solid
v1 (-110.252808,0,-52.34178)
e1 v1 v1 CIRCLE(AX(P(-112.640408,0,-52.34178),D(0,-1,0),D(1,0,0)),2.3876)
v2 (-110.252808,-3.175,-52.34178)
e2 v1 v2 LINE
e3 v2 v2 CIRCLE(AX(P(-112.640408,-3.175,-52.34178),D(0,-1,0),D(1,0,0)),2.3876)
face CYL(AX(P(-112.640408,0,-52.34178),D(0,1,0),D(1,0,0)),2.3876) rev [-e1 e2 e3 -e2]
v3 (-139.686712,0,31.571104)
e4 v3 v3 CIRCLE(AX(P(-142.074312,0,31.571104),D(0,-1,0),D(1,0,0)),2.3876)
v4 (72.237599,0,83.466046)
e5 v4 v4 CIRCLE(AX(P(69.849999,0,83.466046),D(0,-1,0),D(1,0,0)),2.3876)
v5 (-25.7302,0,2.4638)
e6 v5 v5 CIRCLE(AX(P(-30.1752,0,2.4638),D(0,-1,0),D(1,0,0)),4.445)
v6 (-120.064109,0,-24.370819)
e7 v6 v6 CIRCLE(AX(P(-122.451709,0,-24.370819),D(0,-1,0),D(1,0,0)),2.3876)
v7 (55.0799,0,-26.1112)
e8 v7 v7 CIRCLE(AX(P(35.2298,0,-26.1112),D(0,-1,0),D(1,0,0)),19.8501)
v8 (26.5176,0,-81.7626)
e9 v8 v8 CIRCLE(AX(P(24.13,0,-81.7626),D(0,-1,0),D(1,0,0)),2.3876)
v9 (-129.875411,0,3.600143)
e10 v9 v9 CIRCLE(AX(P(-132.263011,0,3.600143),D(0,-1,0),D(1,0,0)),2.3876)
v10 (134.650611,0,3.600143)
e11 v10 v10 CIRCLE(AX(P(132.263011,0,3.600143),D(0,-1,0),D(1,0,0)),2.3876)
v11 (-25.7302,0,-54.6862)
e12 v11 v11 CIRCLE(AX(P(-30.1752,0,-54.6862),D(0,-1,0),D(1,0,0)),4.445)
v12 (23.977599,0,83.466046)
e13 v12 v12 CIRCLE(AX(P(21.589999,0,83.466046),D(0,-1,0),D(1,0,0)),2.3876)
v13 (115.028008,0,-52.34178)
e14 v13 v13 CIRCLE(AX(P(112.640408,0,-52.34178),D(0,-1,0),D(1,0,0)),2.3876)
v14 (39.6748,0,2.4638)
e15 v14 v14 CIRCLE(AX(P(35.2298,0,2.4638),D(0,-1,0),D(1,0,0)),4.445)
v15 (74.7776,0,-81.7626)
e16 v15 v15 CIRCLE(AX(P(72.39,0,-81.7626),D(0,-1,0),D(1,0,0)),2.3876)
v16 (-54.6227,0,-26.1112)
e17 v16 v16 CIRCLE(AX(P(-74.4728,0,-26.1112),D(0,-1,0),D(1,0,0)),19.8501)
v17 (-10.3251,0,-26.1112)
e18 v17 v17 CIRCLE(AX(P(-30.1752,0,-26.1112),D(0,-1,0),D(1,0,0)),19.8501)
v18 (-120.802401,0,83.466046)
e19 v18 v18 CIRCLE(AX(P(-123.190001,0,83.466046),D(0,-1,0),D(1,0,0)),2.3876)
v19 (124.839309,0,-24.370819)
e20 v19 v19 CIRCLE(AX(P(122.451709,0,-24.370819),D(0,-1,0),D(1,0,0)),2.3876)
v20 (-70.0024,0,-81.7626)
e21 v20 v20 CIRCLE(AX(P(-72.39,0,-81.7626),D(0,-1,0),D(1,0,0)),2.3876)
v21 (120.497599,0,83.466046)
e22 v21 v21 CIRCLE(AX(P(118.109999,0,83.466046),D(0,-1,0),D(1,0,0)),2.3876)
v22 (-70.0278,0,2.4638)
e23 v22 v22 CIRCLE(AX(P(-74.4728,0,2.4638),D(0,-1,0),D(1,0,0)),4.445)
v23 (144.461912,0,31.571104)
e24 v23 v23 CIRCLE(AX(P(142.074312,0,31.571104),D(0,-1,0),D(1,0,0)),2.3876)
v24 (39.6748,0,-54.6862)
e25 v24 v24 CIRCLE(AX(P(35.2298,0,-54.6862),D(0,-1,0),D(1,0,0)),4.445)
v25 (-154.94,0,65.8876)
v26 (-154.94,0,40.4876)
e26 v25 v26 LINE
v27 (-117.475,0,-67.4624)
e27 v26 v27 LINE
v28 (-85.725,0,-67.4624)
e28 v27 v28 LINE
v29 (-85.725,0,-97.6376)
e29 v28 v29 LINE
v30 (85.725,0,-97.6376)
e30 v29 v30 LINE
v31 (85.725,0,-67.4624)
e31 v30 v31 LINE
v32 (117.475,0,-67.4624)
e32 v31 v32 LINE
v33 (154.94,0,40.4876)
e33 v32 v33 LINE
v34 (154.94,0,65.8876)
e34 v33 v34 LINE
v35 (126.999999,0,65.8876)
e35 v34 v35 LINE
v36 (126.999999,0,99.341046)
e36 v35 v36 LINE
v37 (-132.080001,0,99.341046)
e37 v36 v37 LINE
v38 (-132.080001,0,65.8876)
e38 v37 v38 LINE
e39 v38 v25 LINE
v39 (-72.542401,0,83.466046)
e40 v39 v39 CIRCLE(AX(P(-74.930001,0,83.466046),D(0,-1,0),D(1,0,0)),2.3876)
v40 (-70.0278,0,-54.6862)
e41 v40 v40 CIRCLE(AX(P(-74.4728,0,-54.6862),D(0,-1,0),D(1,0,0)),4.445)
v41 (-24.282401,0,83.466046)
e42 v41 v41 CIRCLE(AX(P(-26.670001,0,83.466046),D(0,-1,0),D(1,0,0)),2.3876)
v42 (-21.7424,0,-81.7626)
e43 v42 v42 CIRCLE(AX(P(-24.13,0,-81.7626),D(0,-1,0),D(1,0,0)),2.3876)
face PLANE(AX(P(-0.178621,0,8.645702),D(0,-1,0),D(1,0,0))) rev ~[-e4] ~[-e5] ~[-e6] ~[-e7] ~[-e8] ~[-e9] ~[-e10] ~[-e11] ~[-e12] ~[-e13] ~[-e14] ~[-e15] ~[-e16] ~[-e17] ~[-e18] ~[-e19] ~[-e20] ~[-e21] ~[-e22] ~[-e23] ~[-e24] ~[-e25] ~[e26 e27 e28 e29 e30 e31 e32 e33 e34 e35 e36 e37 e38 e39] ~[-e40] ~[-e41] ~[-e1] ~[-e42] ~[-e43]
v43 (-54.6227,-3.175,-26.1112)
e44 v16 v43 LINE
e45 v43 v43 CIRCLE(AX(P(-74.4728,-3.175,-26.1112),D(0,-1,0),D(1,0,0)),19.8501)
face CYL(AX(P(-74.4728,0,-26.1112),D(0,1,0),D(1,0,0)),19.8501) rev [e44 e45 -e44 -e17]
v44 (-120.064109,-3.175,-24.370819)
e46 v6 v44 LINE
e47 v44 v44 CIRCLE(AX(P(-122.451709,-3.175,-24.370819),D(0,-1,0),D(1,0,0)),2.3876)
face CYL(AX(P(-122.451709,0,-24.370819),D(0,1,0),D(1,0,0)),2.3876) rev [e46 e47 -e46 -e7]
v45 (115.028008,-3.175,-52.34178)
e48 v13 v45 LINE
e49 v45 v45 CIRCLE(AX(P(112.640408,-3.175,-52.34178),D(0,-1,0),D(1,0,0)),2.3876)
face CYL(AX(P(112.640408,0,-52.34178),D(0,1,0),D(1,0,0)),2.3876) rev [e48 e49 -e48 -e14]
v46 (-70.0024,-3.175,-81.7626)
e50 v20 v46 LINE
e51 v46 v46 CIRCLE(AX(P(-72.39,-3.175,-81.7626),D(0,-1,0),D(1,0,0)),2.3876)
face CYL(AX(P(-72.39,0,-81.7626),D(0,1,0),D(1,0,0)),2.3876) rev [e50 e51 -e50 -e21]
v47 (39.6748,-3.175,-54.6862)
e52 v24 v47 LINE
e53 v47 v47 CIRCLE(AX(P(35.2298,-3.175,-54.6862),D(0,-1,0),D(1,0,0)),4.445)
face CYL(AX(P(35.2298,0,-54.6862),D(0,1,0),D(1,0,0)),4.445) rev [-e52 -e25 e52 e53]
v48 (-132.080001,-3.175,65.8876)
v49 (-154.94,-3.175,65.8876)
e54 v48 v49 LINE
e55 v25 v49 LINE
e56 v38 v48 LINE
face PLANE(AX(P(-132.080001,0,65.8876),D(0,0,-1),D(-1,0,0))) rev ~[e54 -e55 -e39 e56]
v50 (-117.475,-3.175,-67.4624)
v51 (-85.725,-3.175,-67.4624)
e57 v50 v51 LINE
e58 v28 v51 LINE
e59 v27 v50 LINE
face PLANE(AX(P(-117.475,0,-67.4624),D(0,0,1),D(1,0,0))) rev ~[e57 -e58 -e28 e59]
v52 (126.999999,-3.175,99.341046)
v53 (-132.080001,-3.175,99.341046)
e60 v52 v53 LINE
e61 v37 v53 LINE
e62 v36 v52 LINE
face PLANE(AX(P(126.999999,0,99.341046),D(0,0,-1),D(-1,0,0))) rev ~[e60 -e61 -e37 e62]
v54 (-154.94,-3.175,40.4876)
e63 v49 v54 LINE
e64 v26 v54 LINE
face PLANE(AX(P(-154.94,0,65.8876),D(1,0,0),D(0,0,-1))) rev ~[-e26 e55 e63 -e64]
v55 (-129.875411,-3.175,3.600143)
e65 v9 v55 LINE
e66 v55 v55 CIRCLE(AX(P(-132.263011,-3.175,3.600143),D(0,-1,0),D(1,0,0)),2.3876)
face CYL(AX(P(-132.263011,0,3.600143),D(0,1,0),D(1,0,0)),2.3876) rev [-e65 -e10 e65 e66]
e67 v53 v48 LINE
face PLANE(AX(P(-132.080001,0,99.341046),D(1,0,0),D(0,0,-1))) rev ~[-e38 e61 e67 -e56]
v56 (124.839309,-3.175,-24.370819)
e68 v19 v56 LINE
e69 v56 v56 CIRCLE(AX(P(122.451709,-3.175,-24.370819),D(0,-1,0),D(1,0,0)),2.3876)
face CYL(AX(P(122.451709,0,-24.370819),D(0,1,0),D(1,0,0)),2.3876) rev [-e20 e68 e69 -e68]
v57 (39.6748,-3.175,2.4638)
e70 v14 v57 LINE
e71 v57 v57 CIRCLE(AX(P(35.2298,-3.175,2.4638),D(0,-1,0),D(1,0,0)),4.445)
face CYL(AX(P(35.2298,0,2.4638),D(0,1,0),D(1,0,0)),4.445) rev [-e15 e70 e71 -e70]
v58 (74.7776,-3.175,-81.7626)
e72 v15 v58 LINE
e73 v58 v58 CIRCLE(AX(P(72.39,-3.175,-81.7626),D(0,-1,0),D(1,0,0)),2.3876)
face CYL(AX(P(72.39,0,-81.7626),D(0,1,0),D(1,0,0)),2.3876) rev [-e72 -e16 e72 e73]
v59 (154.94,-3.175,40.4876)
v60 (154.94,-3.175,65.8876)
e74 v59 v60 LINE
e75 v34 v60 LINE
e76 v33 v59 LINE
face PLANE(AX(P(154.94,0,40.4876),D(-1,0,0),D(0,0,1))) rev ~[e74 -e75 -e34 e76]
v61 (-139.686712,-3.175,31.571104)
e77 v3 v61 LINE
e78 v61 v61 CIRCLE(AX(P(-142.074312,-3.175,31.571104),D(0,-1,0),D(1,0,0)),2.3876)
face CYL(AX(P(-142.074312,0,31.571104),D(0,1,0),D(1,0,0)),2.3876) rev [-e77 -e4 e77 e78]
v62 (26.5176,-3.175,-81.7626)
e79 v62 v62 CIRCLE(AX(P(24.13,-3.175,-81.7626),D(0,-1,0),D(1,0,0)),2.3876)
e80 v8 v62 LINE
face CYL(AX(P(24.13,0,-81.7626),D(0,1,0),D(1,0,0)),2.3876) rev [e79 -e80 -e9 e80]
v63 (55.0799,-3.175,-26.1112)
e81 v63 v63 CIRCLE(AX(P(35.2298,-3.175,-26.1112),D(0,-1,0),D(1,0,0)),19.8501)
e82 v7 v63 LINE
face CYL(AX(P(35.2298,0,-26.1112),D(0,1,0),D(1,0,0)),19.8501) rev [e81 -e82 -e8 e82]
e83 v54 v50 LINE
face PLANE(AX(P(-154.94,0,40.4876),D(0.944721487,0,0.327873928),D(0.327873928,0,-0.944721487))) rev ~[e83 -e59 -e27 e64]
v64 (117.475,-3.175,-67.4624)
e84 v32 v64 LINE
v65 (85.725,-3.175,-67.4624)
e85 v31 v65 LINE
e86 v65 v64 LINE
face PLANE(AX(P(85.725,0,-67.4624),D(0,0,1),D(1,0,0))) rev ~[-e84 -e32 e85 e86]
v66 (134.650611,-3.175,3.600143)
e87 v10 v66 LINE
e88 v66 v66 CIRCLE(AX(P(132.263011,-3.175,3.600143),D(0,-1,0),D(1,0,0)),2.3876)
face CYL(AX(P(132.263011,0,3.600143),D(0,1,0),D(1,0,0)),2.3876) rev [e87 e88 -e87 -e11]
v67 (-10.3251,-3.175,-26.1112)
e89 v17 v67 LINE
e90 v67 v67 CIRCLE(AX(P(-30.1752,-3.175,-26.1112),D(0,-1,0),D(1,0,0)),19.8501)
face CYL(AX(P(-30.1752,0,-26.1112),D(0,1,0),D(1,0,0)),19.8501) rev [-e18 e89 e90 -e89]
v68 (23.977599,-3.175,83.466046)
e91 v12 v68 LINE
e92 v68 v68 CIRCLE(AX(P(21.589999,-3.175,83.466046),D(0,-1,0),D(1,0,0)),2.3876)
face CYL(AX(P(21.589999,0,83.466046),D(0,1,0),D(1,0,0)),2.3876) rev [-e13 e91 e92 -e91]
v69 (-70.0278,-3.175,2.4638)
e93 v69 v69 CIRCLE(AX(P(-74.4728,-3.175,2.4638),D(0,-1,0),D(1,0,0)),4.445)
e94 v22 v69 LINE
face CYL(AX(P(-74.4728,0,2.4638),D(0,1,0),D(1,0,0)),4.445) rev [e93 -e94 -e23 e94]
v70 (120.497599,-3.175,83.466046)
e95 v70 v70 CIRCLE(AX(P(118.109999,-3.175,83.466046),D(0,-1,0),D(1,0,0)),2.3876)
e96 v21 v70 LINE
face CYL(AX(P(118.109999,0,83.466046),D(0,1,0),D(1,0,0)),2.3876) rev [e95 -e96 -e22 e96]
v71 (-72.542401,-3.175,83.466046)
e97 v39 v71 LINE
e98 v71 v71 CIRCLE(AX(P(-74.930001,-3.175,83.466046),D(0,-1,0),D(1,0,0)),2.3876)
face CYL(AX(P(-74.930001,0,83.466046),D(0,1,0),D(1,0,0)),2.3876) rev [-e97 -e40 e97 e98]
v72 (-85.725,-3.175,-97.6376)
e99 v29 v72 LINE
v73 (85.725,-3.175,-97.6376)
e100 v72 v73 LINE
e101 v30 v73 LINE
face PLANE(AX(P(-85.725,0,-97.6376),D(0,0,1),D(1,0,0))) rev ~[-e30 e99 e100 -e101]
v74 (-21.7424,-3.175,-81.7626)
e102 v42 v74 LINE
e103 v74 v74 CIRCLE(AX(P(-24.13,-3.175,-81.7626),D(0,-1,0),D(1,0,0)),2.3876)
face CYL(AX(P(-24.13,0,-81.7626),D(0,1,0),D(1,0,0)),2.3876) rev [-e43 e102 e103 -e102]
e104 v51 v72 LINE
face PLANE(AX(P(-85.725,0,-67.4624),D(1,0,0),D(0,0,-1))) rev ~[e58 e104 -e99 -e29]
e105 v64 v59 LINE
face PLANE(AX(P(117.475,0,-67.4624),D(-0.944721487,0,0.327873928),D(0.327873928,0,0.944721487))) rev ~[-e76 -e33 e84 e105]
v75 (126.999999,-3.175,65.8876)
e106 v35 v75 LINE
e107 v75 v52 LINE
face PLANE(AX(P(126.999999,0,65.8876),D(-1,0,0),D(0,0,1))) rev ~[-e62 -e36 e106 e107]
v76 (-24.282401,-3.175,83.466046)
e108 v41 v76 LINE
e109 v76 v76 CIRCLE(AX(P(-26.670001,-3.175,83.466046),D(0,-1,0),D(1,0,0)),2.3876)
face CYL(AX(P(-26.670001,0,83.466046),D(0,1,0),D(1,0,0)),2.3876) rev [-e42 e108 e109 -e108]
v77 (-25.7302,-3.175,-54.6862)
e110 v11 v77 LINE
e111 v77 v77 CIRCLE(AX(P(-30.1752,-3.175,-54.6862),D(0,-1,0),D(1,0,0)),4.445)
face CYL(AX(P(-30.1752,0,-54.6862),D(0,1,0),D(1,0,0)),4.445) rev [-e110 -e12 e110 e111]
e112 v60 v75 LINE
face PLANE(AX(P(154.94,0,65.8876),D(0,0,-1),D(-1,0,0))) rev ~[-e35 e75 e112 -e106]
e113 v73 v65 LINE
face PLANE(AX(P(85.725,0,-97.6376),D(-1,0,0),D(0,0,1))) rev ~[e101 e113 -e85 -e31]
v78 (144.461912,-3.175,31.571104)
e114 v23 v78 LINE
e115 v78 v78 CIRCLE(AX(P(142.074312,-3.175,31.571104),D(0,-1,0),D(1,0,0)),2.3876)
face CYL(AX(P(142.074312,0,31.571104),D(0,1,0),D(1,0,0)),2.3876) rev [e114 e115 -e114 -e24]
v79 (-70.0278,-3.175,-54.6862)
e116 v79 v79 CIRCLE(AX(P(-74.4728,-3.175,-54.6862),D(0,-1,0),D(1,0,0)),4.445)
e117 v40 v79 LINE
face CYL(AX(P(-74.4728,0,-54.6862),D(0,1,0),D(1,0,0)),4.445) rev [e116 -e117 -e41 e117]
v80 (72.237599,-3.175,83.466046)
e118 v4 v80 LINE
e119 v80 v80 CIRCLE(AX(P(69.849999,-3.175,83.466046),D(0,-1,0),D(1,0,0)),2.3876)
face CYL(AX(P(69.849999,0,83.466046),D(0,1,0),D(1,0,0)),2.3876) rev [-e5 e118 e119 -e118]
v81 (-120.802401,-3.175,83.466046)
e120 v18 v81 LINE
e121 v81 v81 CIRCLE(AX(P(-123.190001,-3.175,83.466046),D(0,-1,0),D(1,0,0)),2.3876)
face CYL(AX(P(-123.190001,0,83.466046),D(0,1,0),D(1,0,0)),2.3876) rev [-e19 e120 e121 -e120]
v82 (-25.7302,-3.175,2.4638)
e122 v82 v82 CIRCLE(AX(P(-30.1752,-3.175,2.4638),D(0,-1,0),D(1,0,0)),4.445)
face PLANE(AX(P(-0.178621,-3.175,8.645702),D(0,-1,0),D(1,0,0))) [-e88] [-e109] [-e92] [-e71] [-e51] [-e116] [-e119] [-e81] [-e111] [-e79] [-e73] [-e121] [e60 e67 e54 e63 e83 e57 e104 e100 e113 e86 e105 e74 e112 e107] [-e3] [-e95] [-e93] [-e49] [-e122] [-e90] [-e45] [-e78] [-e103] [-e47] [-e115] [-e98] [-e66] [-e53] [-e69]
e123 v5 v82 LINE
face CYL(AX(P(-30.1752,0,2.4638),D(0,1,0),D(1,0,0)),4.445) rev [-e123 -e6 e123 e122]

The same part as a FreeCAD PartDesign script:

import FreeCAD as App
import Part
import Sketcher
from FreeCAD import Vector
Q = App.Units.Quantity

doc = App.newDocument("Part")
body = doc.addObject("PartDesign::Body", "Body")

# Sketch on XZ plane
sketch1 = body.newObject("Sketcher::SketchObject", "Sketch")
sketch1.AttachmentSupport = (doc.getObject("XZ_Plane"), [""])
sketch1.MapMode = "FlatFace"
sketch1.addGeometry([
    Part.LineSegment(Vector(-85.7, -97.6, 0), Vector(85.7, -97.6, 0)),  # 0
    Part.LineSegment(Vector(85.7, -97.6, 0), Vector(85.7, -67.5, 0)),  # 1
    Part.LineSegment(Vector(85.7, -67.5, 0), Vector(117.5, -67.5, 0)),  # 2
    Part.LineSegment(Vector(117.5, -67.5, 0), Vector(154.9, 40.5, 0)),  # 3
    Part.LineSegment(Vector(154.9, 40.5, 0), Vector(154.9, 65.9, 0)),  # 4
    Part.LineSegment(Vector(154.9, 65.9, 0), Vector(127, 65.9, 0)),  # 5
    Part.LineSegment(Vector(127, 65.9, 0), Vector(127, 99.3, 0)),  # 6
    Part.LineSegment(Vector(127, 99.3, 0), Vector(-132.1, 99.3, 0)),  # 7
    Part.LineSegment(Vector(-132.1, 99.3, 0), Vector(-132.1, 65.9, 0)),  # 8
    Part.LineSegment(Vector(-132.1, 65.9, 0), Vector(-154.9, 65.9, 0)),  # 9
    Part.LineSegment(Vector(-154.9, 65.9, 0), Vector(-154.9, 40.5, 0)),  # 10
    Part.LineSegment(Vector(-154.9, 40.5, 0), Vector(-117.5, -67.5, 0)),  # 11
    Part.LineSegment(Vector(-117.5, -67.5, 0), Vector(-85.7, -67.5, 0)),  # 12
    Part.LineSegment(Vector(-85.7, -67.5, 0), Vector(-85.7, -97.6, 0)),  # 13
    Part.Circle(Vector(-72.4, -81.8, 0), Vector(0, 0, 1), 2.4),  # 14
    Part.Circle(Vector(-112.6, -52.3, 0), Vector(0, 0, 1), 2.4),  # 15
    Part.Circle(Vector(-74.5, -54.7, 0), Vector(0, 0, 1), 4.4),  # 16
    Part.Circle(Vector(-24.1, -81.8, 0), Vector(0, 0, 1), 2.4),  # 17
    Part.Circle(Vector(-30.2, -54.7, 0), Vector(0, 0, 1), 4.4),  # 18
    Part.Circle(Vector(-122.5, -24.4, 0), Vector(0, 0, 1), 2.4),  # 19
    Part.Circle(Vector(-74.5, -26.1, 0), Vector(0, 0, 1), 19.9),  # 20
    Part.Circle(Vector(-30.2, -26.1, 0), Vector(0, 0, 1), 19.9),  # 21
    Part.Circle(Vector(24.1, -81.8, 0), Vector(0, 0, 1), 2.4),  # 22
    Part.Circle(Vector(35.2, -54.7, 0), Vector(0, 0, 1), 4.4),  # 23
    Part.Circle(Vector(72.4, -81.8, 0), Vector(0, 0, 1), 2.4),  # 24
    Part.Circle(Vector(112.6, -52.3, 0), Vector(0, 0, 1), 2.4),  # 25
    Part.Circle(Vector(35.2, -26.1, 0), Vector(0, 0, 1), 19.9),  # 26
    Part.Circle(Vector(122.5, -24.4, 0), Vector(0, 0, 1), 2.4),  # 27
    Part.Circle(Vector(-132.3, 3.6, 0), Vector(0, 0, 1), 2.4),  # 28
    Part.Circle(Vector(-74.5, 2.5, 0), Vector(0, 0, 1), 4.4),  # 29
    Part.Circle(Vector(-142.1, 31.6, 0), Vector(0, 0, 1), 2.4),  # 30
    Part.Circle(Vector(-30.2, 2.5, 0), Vector(0, 0, 1), 4.4),  # 31
    Part.Circle(Vector(-123.2, 83.5, 0), Vector(0, 0, 1), 2.4),  # 32
    Part.Circle(Vector(-74.9, 83.5, 0), Vector(0, 0, 1), 2.4),  # 33
    Part.Circle(Vector(-26.7, 83.5, 0), Vector(0, 0, 1), 2.4),  # 34
    Part.Circle(Vector(35.2, 2.5, 0), Vector(0, 0, 1), 4.4),  # 35
    Part.Circle(Vector(132.3, 3.6, 0), Vector(0, 0, 1), 2.4),  # 36
    Part.Circle(Vector(142.1, 31.6, 0), Vector(0, 0, 1), 2.4),  # 37
    Part.Circle(Vector(21.6, 83.5, 0), Vector(0, 0, 1), 2.4),  # 38
    Part.Circle(Vector(69.8, 83.5, 0), Vector(0, 0, 1), 2.4),  # 39
    Part.Circle(Vector(118.1, 83.5, 0), Vector(0, 0, 1), 2.4),  # 40
], False)
sketch1.addConstraint([
    Sketcher.Constraint("Coincident", 0, 2, 1, 1),
    Sketcher.Constraint("Coincident", 1, 2, 2, 1),
    Sketcher.Constraint("Coincident", 2, 2, 3, 1),
    Sketcher.Constraint("Coincident", 3, 2, 4, 1),
    Sketcher.Constraint("Coincident", 4, 2, 5, 1),
    Sketcher.Constraint("Coincident", 5, 2, 6, 1),
    Sketcher.Constraint("Coincident", 6, 2, 7, 1),
    Sketcher.Constraint("Coincident", 7, 2, 8, 1),
    Sketcher.Constraint("Coincident", 8, 2, 9, 1),
    Sketcher.Constraint("Coincident", 9, 2, 10, 1),
    Sketcher.Constraint("Coincident", 10, 2, 11, 1),
    Sketcher.Constraint("Coincident", 11, 2, 12, 1),
    Sketcher.Constraint("Coincident", 12, 2, 13, 1),
    Sketcher.Constraint("Coincident", 13, 2, 0, 1),
    Sketcher.Constraint("Horizontal", 0),
    Sketcher.Constraint("Vertical", 1),
    Sketcher.Constraint("Horizontal", 2),
    Sketcher.Constraint("Vertical", 4),
    Sketcher.Constraint("Horizontal", 5),
    Sketcher.Constraint("Vertical", 6),
    Sketcher.Constraint("Horizontal", 7),
    Sketcher.Constraint("Vertical", 8),
    Sketcher.Constraint("Horizontal", 9),
    Sketcher.Constraint("Vertical", 10),
    Sketcher.Constraint("Horizontal", 12),
    Sketcher.Constraint("Vertical", 13),
    Sketcher.Constraint("Equal", 14, 15),
    Sketcher.Constraint("Equal", 15, 17),
    Sketcher.Constraint("Equal", 16, 18),
    Sketcher.Constraint("Equal", 17, 19),
    Sketcher.Constraint("Equal", 20, 21),
    Sketcher.Constraint("Equal", 19, 22),
    Sketcher.Constraint("Equal", 18, 23),
    Sketcher.Constraint("Equal", 22, 24),
    Sketcher.Constraint("Equal", 24, 25),
    Sketcher.Constraint("Equal", 21, 26),
    Sketcher.Constraint("Equal", 25, 27),
    Sketcher.Constraint("Equal", 27, 28),
    Sketcher.Constraint("Equal", 23, 29),
    Sketcher.Constraint("Equal", 28, 30),
    Sketcher.Constraint("Equal", 29, 31),
    Sketcher.Constraint("Equal", 30, 32),
    Sketcher.Constraint("Equal", 32, 33),
    Sketcher.Constraint("Equal", 33, 34),
    Sketcher.Constraint("Equal", 31, 35),
    Sketcher.Constraint("Equal", 34, 36),
    Sketcher.Constraint("Equal", 36, 37),
    Sketcher.Constraint("Equal", 37, 38),
    Sketcher.Constraint("Equal", 38, 39),
    Sketcher.Constraint("Equal", 39, 40),
    Sketcher.Constraint("Symmetric", 17, 3, 22, 3, -2),
    Sketcher.Constraint("Symmetric", 14, 3, 24, 3, -2),
    Sketcher.Constraint("Symmetric", 15, 3, 25, 3, -2),
    Sketcher.Constraint("Symmetric", 19, 3, 27, 3, -2),
    Sketcher.Constraint("Symmetric", 28, 3, 36, 3, -2),
    Sketcher.Constraint("Symmetric", 30, 3, 37, 3, -2),
    Sketcher.Constraint("Symmetric", 4, 2, 9, 2, -2),
    Sketcher.Constraint("Symmetric", 2, 2, 11, 2, -2),
    Sketcher.Constraint("Horizontal", 14, 3, 17, 3),
    Sketcher.Constraint("Horizontal", 16, 3, 18, 3),
    Sketcher.Constraint("Horizontal", 20, 3, 21, 3),
    Sketcher.Constraint("Horizontal", 18, 3, 23, 3),
    Sketcher.Constraint("Horizontal", 21, 3, 26, 3),
    Sketcher.Constraint("Horizontal", 29, 3, 31, 3),
    Sketcher.Constraint("Horizontal", 32, 3, 33, 3),
    Sketcher.Constraint("Horizontal", 33, 3, 34, 3),
    Sketcher.Constraint("Horizontal", 31, 3, 35, 3),
    Sketcher.Constraint("Horizontal", 34, 3, 38, 3),
    Sketcher.Constraint("Horizontal", 38, 3, 39, 3),
    Sketcher.Constraint("Horizontal", 39, 3, 40, 3),
    Sketcher.Constraint("Horizontal", 3, 2, 10, 2),
    Sketcher.Constraint("Vertical", 16, 3, 20, 3),
    Sketcher.Constraint("Vertical", 18, 3, 21, 3),
    Sketcher.Constraint("Vertical", 23, 3, 26, 3),
    Sketcher.Constraint("Vertical", 20, 3, 29, 3),
    Sketcher.Constraint("Vertical", 21, 3, 31, 3),
    Sketcher.Constraint("Vertical", 26, 3, 35, 3),
    Sketcher.Constraint("Equal", 2, 12),
    Sketcher.Constraint("Diameter", 16, Q("0.35 in")),
    Sketcher.Constraint("DistanceY", 4, 1, 4, 2, Q("1 in")),
    Sketcher.Constraint("Diameter", 14, Q("0.188 in")),
    Sketcher.Constraint("Diameter", 20, Q("1.563 in")),
    Sketcher.Constraint("DistanceX", 5, 2, 5, 1, Q("1.1 in")),
    Sketcher.Constraint("DistanceX", 7, 2, 7, 1, Q("10.2 in")),
    Sketcher.Constraint("DistanceX", 9, 2, 9, 1, Q("0.9 in")),
    Sketcher.Constraint("DistanceX", 0, 1, 0, 2, Q("6.75 in")),
    Sketcher.Constraint("DistanceX", 2, 1, 2, 2, Q("1.25 in")),
    Sketcher.Constraint("DistanceX", 14, 3, 17, 3, Q("1.9 in")),
    Sketcher.Constraint("DistanceX", 17, 3, 22, 3, Q("1.9 in")),
    Sketcher.Constraint("DistanceX", 32, 3, 33, 3, Q("1.9 in")),
    Sketcher.Constraint("DistanceX", 33, 3, 34, 3, Q("1.9 in")),
    Sketcher.Constraint("DistanceX", 34, 3, 38, 3, Q("1.9 in")),
    Sketcher.Constraint("DistanceX", 38, 3, 39, 3, Q("1.9 in")),
    Sketcher.Constraint("DistanceX", 39, 3, 40, 3, Q("1.9 in")),
    Sketcher.Constraint("DistanceY", 1, 1, 1, 2, Q("1.188 in")),
    Sketcher.Constraint("DistanceX", 32, 3, -1, 1, Q("4.85 in")),
    Sketcher.Constraint("DistanceY", 16, 3, 29, 3, Q("2.25 in")),
    Sketcher.Constraint("DistanceY", 14, 3, -1, 1, Q("3.219 in")),
    Sketcher.Constraint("DistanceX", 16, 3, -1, 1, Q("2.932 in")),
    Sketcher.Constraint("DistanceY", 16, 3, -1, 1, Q("2.153 in")),
    Sketcher.Constraint("DistanceX", 18, 3, -1, 1, Q("1.188 in")),
    Sketcher.Constraint("DistanceY", 20, 3, -1, 1, Q("1.028 in")),
    Sketcher.Constraint("DistanceX", -1, 1, 23, 3, Q("1.387 in")),
    Sketcher.Constraint("DistanceY", 0, 2, -1, 1, Q("3.844 in")),
    Sketcher.Constraint("DistanceY", -1, 1, 3, 2, Q("1.594 in")),
    Sketcher.Constraint("DistanceY", 40, 3, 6, 2, Q("0.625 in")),
    Sketcher.Constraint("DistanceY", 15, 3, -1, 1, Q("2.0607 in")),
    Sketcher.Constraint("DistanceX", 19, 3, 15, 3, Q("9.811301 mm")),
    Sketcher.Constraint("DistanceX", 30, 3, 28, 3, Q("9.811301 mm")),
    Sketcher.Constraint("DistanceY", 6, 1, 6, 2, Q("33.453446 mm")),
    Sketcher.Constraint("DistanceX", 19, 3, -1, 1, Q("122.451709 mm")),
    Sketcher.Constraint("DistanceY", 19, 3, -1, 1, Q("24.370819 mm")),
    Sketcher.Constraint("DistanceX", 28, 3, -1, 1, Q("132.263011 mm")),
    Sketcher.Constraint("DistanceY", 19, 3, 28, 3, Q("27.970962 mm")),
    Sketcher.Constraint("DistanceY", 28, 3, 30, 3, Q("27.970961 mm")),
])
pad1 = body.newObject("PartDesign::Pad", "Pad")
pad1.Profile = sketch1
pad1.Length = Q("0.125 in")

doc.recompute()
